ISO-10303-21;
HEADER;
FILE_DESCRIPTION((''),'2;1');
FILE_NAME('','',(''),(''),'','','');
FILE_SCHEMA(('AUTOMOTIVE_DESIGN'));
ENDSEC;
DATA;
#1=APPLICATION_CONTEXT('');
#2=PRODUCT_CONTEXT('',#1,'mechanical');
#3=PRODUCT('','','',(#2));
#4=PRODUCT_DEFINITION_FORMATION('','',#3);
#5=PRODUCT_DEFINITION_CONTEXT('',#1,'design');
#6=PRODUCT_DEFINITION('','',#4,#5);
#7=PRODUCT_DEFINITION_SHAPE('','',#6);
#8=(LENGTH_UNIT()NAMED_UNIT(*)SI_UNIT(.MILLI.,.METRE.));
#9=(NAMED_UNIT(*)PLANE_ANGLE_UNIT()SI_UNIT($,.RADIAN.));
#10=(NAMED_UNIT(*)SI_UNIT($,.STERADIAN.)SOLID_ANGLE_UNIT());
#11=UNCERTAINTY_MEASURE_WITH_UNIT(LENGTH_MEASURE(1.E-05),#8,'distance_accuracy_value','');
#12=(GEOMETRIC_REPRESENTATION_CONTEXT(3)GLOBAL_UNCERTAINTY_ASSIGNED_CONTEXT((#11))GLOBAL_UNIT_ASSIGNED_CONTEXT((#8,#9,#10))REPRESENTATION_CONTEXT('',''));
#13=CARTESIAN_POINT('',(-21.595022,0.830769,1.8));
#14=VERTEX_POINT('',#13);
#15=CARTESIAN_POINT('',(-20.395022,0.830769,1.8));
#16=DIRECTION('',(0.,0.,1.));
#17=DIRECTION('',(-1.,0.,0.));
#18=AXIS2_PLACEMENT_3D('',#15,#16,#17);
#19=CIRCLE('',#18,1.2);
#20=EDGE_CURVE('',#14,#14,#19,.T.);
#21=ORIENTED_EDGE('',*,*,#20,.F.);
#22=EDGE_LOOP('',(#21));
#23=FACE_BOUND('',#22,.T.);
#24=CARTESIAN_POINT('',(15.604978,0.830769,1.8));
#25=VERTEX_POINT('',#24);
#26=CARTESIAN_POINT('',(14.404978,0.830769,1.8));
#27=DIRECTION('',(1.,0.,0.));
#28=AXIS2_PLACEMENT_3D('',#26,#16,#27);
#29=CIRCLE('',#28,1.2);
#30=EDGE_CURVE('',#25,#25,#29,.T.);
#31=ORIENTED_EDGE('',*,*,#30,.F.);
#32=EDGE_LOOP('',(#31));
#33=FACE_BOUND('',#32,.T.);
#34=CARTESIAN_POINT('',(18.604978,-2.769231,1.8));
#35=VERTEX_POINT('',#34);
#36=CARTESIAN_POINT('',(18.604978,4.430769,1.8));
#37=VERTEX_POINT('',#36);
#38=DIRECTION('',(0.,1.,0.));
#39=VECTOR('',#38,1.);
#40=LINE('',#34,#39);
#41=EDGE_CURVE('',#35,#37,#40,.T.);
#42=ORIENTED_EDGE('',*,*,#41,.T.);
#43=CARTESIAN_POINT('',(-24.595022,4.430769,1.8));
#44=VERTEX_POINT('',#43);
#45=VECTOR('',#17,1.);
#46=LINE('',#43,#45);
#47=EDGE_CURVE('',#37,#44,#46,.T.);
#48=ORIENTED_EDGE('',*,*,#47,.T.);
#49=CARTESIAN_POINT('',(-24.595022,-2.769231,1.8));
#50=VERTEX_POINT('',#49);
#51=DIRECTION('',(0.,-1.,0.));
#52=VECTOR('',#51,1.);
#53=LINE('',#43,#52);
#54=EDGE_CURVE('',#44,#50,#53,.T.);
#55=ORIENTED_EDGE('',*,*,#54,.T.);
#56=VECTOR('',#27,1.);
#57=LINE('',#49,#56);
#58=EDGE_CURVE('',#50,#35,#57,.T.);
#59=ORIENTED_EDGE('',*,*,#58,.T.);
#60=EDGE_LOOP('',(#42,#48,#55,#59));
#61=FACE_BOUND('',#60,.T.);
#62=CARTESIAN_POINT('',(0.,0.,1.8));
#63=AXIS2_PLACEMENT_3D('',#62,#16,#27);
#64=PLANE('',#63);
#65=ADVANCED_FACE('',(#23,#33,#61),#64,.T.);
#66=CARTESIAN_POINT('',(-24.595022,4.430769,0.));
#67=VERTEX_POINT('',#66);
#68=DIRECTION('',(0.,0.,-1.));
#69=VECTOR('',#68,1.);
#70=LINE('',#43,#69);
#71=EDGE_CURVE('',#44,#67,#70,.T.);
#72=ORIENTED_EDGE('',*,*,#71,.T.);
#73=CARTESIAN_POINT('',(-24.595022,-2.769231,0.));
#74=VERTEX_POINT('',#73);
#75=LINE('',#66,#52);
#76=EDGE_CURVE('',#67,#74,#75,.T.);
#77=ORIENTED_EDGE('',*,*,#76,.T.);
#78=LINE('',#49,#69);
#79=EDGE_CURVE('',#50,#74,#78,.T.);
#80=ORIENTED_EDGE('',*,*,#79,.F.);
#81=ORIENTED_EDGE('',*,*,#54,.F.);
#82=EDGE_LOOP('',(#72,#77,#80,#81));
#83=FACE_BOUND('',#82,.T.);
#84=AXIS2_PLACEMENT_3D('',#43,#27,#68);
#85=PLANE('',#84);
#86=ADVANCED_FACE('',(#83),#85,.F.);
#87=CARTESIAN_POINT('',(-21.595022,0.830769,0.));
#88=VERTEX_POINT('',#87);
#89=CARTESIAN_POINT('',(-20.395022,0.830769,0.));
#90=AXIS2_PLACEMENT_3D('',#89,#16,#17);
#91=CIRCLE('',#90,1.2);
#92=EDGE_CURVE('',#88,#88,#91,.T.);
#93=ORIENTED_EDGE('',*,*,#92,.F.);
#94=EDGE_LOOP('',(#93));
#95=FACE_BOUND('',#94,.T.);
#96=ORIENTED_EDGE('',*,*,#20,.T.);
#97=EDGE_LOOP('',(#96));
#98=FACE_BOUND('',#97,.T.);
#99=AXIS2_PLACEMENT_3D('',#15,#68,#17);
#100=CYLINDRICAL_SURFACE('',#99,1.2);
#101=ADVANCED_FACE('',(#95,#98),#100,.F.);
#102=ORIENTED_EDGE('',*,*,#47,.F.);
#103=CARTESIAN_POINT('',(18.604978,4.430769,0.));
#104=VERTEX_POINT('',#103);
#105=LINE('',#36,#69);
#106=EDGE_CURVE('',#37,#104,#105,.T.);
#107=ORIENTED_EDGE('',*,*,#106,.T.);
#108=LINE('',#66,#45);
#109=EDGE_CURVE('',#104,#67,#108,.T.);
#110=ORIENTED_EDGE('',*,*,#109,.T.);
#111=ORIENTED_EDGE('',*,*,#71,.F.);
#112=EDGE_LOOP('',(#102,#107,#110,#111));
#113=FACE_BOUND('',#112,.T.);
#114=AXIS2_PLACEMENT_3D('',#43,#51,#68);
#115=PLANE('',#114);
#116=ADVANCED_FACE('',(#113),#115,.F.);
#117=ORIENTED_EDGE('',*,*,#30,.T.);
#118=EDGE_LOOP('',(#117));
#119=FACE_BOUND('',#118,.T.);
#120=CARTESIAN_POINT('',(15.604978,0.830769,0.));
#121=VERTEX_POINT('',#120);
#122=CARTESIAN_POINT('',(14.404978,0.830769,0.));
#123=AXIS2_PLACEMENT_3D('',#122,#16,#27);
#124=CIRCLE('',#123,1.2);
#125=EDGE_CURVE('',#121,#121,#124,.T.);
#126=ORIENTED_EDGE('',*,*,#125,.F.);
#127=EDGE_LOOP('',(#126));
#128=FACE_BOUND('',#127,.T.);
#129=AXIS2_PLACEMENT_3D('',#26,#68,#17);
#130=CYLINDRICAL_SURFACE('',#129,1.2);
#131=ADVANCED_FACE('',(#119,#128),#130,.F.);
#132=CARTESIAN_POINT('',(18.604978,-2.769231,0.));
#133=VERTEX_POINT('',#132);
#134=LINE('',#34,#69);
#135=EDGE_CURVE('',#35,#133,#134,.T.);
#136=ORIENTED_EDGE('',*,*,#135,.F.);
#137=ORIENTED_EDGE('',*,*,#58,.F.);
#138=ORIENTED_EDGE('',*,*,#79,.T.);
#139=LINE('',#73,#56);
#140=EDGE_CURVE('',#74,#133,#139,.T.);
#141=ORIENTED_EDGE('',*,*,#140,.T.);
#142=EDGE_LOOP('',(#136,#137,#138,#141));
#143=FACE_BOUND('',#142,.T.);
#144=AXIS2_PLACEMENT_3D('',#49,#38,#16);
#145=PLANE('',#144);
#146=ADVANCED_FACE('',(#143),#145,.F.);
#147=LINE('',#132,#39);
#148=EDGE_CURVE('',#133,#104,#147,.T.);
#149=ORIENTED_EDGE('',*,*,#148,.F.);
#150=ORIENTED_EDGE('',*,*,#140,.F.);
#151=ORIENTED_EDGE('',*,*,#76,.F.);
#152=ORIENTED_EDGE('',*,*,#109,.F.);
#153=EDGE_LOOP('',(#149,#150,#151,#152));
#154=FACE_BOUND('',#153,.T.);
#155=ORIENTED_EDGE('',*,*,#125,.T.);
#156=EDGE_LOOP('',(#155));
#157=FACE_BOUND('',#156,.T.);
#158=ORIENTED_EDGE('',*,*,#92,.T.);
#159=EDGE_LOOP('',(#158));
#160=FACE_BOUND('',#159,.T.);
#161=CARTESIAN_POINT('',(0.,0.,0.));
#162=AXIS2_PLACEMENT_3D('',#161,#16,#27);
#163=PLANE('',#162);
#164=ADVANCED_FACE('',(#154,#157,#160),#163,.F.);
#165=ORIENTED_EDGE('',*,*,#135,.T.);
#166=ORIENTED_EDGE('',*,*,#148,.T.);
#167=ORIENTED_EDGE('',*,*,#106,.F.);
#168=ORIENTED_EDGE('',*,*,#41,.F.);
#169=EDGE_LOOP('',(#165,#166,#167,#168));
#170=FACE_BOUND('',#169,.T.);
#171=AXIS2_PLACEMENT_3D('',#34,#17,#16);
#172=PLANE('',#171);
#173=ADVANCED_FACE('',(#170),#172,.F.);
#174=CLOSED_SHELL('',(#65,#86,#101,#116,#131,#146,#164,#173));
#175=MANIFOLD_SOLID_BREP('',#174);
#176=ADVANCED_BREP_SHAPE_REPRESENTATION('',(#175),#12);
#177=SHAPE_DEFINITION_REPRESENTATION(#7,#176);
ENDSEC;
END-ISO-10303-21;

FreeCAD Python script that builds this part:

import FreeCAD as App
import Part
import Sketcher


def add_polygon(sketch, points):
    """Adds a closed chain of lines whose ends are joined by coincident constraints."""
    first, n = sketch.GeometryCount, len(points)
    for a, b in zip(points, points[1:] + points[:1]):
        sketch.addGeometry(Part.LineSegment(App.Vector(*a, 0), App.Vector(*b, 0)), False)
    for i in range(n):
        sketch.addConstraint(Sketcher.Constraint("Coincident", first + i, 2, first + (i + 1) % n, 1))

doc = App.newDocument("Part")
params = doc.addObject("Spreadsheet::Sheet", "Params")
for row, (alias, value) in enumerate([
    ("sketch1_width", "43.2 mm"),
    ("sketch1_height", "7.2 mm"),
    ("pad1_length", "1.8 mm"),
    ("sketch2_diameter", "2.4 mm"),
    ("pocket1_length", "1.8 mm"),
], start=1):
    params.set(f"A{row}", alias)
    params.set(f"B{row}", "=" + value)
    params.setAlias(f"B{row}", alias)

body = doc.addObject("PartDesign::Body", "Body")

sketch1 = body.newObject("Sketcher::SketchObject", "Sketch")
sketch1.AttachmentSupport = (doc.getObject("XY_Plane"), [""])
sketch1.MapMode = "FlatFace"
add_polygon(sketch1, [(-25, 4), (-25, -3), (19, -3), (19, 4)])
sketch1.addConstraint([
    Sketcher.Constraint("Vertical", 0),
    Sketcher.Constraint("Horizontal", 1),
    Sketcher.Constraint("Vertical", 2),
    Sketcher.Constraint("Horizontal", 3),
    Sketcher.Constraint("DistanceX", 1, 1, 1, 2, 43.2),
    Sketcher.Constraint("DistanceY", 0, 2, 0, 1, 7.2),
    Sketcher.Constraint("DistanceY", 0, 2, -1, 1, 2.769231),
    Sketcher.Constraint("DistanceX", 0, 2, -1, 1, 24.595022),
])
sketch1.setExpression("Constraints[8]", "Params.sketch1_width")
sketch1.setExpression("Constraints[9]", "Params.sketch1_height")
pad1 = body.newObject("PartDesign::Pad", "Pad")
pad1.Profile = sketch1
pad1.setExpression("Length", "Params.pad1_length")

sketch2 = body.newObject("Sketcher::SketchObject", "Sketch001")
sketch2.AttachmentSupport = (doc.getObject("XY_Plane"), [""])
sketch2.MapMode = "FlatFace"
sketch2.addGeometry([
    Part.Circle(App.Vector(14.4, 0.8, 0), App.Vector(0, 0, 1), 1.2),
    Part.Circle(App.Vector(-20.4, 0.8, 0), App.Vector(0, 0, 1), 1.2),
], False)
sketch2.addConstraint([
    Sketcher.Constraint("Equal", 0, 1),
    Sketcher.Constraint("Horizontal", 0, 3, 1, 3),
    Sketcher.Constraint("Diameter", 0, 2.4),
    Sketcher.Constraint("DistanceX", 1, 3, 0, 3, 34.8),
    Sketcher.Constraint("DistanceY", -1, 1, 0, 3, 0.830769),
    Sketcher.Constraint("DistanceX", -1, 1, 0, 3, 14.404978),
])
sketch2.setExpression("Constraints[2]", "Params.sketch2_diameter")
pocket1 = body.newObject("PartDesign::Pocket", "Pocket")
pocket1.Profile = sketch2
pocket1.setExpression("Length", "Params.pocket1_length")
pocket1.Reversed = True

doc.recompute()
